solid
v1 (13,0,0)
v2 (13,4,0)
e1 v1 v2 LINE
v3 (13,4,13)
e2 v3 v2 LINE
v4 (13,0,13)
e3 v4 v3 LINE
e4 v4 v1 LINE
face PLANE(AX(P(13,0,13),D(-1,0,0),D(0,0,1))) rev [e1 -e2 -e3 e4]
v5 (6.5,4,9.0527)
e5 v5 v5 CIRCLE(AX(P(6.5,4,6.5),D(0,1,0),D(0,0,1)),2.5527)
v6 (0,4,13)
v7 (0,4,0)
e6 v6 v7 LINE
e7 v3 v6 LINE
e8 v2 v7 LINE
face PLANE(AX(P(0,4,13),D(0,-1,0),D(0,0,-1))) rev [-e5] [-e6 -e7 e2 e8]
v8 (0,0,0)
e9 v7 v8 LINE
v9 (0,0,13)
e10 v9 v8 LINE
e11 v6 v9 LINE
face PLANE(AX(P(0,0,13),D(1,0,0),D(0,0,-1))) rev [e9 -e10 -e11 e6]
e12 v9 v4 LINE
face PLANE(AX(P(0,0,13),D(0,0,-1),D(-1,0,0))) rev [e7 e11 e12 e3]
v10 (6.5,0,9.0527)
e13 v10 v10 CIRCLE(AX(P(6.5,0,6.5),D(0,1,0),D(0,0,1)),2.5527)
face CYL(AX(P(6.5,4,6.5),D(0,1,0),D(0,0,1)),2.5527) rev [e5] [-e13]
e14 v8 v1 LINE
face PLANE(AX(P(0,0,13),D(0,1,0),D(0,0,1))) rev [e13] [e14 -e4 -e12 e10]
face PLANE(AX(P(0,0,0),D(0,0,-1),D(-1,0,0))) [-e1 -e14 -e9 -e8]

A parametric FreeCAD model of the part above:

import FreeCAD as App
import Part
import Sketcher

V = App.Vector
Q = App.Units.Quantity


def add_polygon(sketch, points):
    """Adds a closed chain of lines whose ends are joined by coincident constraints."""
    first, n = sketch.GeometryCount, len(points)
    for a, b in zip(points, points[1:] + points[:1]):
        sketch.addGeometry(Part.LineSegment(App.Vector(*a, 0), App.Vector(*b, 0)), False)
    for i in range(n):
        sketch.addConstraint(Sketcher.Constraint("Coincident", first + i, 2, first + (i + 1) % n, 1))

doc = App.newDocument("Part")
body = doc.addObject("PartDesign::Body", "Body")

# Sketch on XY plane
sketch1 = body.newObject("Sketcher::SketchObject", "Sketch")
sketch1.AttachmentSupport = (doc.getObject("XY_Plane"), [""])
sketch1.MapMode = "FlatFace"
add_polygon(sketch1, [(0, 4), (0, 0), (13, 0), (13, 4)])  # lines 0-3
sketch1.addConstraint([
    Sketcher.Constraint("Vertical", 0),
    Sketcher.Constraint("Horizontal", 1),
    Sketcher.Constraint("Vertical", 2),
    Sketcher.Constraint("Horizontal", 3),
    Sketcher.Constraint("Coincident", 0, 2, -1, 1),
    Sketcher.Constraint("DistanceX", 1, 1, 1, 2, Q("13 mm")),
    Sketcher.Constraint("DistanceY", 0, 2, 0, 1, Q("4 mm")),
])
pad1 = body.newObject("PartDesign::Pad", "Pad")
pad1.Profile = sketch1
pad1.Length = 13

# Sketch on XZ plane
sketch2 = body.newObject("Sketcher::SketchObject", "Sketch001")
sketch2.AttachmentSupport = (doc.getObject("XZ_Plane"), [""])
sketch2.MapMode = "FlatFace"
sketch2.AttachmentOffset = App.Placement(V(0, 0, -4), App.Rotation())
sketch2.addGeometry(Part.Circle(V(6.5, 6.5, 0), V(0, 0, 1), 2.5527), False)
sketch2.addConstraint([
    Sketcher.Constraint("Diameter", 0, Q("5.1054 mm")),
    Sketcher.Constraint("DistanceX", -1, 1, 0, 3, Q("6.5 mm")),
    Sketcher.Constraint("DistanceY", -1, 1, 0, 3, Q("6.5 mm")),
])
doc.recompute()
hole = body.newObject("PartDesign::Hole", "Hole")
hole.Profile = sketch2
hole.ThreadType = "None"
hole.Diameter = 5.1054
hole.DepthType = "ThroughAll"
hole.Reversed = True

doc.recompute()
